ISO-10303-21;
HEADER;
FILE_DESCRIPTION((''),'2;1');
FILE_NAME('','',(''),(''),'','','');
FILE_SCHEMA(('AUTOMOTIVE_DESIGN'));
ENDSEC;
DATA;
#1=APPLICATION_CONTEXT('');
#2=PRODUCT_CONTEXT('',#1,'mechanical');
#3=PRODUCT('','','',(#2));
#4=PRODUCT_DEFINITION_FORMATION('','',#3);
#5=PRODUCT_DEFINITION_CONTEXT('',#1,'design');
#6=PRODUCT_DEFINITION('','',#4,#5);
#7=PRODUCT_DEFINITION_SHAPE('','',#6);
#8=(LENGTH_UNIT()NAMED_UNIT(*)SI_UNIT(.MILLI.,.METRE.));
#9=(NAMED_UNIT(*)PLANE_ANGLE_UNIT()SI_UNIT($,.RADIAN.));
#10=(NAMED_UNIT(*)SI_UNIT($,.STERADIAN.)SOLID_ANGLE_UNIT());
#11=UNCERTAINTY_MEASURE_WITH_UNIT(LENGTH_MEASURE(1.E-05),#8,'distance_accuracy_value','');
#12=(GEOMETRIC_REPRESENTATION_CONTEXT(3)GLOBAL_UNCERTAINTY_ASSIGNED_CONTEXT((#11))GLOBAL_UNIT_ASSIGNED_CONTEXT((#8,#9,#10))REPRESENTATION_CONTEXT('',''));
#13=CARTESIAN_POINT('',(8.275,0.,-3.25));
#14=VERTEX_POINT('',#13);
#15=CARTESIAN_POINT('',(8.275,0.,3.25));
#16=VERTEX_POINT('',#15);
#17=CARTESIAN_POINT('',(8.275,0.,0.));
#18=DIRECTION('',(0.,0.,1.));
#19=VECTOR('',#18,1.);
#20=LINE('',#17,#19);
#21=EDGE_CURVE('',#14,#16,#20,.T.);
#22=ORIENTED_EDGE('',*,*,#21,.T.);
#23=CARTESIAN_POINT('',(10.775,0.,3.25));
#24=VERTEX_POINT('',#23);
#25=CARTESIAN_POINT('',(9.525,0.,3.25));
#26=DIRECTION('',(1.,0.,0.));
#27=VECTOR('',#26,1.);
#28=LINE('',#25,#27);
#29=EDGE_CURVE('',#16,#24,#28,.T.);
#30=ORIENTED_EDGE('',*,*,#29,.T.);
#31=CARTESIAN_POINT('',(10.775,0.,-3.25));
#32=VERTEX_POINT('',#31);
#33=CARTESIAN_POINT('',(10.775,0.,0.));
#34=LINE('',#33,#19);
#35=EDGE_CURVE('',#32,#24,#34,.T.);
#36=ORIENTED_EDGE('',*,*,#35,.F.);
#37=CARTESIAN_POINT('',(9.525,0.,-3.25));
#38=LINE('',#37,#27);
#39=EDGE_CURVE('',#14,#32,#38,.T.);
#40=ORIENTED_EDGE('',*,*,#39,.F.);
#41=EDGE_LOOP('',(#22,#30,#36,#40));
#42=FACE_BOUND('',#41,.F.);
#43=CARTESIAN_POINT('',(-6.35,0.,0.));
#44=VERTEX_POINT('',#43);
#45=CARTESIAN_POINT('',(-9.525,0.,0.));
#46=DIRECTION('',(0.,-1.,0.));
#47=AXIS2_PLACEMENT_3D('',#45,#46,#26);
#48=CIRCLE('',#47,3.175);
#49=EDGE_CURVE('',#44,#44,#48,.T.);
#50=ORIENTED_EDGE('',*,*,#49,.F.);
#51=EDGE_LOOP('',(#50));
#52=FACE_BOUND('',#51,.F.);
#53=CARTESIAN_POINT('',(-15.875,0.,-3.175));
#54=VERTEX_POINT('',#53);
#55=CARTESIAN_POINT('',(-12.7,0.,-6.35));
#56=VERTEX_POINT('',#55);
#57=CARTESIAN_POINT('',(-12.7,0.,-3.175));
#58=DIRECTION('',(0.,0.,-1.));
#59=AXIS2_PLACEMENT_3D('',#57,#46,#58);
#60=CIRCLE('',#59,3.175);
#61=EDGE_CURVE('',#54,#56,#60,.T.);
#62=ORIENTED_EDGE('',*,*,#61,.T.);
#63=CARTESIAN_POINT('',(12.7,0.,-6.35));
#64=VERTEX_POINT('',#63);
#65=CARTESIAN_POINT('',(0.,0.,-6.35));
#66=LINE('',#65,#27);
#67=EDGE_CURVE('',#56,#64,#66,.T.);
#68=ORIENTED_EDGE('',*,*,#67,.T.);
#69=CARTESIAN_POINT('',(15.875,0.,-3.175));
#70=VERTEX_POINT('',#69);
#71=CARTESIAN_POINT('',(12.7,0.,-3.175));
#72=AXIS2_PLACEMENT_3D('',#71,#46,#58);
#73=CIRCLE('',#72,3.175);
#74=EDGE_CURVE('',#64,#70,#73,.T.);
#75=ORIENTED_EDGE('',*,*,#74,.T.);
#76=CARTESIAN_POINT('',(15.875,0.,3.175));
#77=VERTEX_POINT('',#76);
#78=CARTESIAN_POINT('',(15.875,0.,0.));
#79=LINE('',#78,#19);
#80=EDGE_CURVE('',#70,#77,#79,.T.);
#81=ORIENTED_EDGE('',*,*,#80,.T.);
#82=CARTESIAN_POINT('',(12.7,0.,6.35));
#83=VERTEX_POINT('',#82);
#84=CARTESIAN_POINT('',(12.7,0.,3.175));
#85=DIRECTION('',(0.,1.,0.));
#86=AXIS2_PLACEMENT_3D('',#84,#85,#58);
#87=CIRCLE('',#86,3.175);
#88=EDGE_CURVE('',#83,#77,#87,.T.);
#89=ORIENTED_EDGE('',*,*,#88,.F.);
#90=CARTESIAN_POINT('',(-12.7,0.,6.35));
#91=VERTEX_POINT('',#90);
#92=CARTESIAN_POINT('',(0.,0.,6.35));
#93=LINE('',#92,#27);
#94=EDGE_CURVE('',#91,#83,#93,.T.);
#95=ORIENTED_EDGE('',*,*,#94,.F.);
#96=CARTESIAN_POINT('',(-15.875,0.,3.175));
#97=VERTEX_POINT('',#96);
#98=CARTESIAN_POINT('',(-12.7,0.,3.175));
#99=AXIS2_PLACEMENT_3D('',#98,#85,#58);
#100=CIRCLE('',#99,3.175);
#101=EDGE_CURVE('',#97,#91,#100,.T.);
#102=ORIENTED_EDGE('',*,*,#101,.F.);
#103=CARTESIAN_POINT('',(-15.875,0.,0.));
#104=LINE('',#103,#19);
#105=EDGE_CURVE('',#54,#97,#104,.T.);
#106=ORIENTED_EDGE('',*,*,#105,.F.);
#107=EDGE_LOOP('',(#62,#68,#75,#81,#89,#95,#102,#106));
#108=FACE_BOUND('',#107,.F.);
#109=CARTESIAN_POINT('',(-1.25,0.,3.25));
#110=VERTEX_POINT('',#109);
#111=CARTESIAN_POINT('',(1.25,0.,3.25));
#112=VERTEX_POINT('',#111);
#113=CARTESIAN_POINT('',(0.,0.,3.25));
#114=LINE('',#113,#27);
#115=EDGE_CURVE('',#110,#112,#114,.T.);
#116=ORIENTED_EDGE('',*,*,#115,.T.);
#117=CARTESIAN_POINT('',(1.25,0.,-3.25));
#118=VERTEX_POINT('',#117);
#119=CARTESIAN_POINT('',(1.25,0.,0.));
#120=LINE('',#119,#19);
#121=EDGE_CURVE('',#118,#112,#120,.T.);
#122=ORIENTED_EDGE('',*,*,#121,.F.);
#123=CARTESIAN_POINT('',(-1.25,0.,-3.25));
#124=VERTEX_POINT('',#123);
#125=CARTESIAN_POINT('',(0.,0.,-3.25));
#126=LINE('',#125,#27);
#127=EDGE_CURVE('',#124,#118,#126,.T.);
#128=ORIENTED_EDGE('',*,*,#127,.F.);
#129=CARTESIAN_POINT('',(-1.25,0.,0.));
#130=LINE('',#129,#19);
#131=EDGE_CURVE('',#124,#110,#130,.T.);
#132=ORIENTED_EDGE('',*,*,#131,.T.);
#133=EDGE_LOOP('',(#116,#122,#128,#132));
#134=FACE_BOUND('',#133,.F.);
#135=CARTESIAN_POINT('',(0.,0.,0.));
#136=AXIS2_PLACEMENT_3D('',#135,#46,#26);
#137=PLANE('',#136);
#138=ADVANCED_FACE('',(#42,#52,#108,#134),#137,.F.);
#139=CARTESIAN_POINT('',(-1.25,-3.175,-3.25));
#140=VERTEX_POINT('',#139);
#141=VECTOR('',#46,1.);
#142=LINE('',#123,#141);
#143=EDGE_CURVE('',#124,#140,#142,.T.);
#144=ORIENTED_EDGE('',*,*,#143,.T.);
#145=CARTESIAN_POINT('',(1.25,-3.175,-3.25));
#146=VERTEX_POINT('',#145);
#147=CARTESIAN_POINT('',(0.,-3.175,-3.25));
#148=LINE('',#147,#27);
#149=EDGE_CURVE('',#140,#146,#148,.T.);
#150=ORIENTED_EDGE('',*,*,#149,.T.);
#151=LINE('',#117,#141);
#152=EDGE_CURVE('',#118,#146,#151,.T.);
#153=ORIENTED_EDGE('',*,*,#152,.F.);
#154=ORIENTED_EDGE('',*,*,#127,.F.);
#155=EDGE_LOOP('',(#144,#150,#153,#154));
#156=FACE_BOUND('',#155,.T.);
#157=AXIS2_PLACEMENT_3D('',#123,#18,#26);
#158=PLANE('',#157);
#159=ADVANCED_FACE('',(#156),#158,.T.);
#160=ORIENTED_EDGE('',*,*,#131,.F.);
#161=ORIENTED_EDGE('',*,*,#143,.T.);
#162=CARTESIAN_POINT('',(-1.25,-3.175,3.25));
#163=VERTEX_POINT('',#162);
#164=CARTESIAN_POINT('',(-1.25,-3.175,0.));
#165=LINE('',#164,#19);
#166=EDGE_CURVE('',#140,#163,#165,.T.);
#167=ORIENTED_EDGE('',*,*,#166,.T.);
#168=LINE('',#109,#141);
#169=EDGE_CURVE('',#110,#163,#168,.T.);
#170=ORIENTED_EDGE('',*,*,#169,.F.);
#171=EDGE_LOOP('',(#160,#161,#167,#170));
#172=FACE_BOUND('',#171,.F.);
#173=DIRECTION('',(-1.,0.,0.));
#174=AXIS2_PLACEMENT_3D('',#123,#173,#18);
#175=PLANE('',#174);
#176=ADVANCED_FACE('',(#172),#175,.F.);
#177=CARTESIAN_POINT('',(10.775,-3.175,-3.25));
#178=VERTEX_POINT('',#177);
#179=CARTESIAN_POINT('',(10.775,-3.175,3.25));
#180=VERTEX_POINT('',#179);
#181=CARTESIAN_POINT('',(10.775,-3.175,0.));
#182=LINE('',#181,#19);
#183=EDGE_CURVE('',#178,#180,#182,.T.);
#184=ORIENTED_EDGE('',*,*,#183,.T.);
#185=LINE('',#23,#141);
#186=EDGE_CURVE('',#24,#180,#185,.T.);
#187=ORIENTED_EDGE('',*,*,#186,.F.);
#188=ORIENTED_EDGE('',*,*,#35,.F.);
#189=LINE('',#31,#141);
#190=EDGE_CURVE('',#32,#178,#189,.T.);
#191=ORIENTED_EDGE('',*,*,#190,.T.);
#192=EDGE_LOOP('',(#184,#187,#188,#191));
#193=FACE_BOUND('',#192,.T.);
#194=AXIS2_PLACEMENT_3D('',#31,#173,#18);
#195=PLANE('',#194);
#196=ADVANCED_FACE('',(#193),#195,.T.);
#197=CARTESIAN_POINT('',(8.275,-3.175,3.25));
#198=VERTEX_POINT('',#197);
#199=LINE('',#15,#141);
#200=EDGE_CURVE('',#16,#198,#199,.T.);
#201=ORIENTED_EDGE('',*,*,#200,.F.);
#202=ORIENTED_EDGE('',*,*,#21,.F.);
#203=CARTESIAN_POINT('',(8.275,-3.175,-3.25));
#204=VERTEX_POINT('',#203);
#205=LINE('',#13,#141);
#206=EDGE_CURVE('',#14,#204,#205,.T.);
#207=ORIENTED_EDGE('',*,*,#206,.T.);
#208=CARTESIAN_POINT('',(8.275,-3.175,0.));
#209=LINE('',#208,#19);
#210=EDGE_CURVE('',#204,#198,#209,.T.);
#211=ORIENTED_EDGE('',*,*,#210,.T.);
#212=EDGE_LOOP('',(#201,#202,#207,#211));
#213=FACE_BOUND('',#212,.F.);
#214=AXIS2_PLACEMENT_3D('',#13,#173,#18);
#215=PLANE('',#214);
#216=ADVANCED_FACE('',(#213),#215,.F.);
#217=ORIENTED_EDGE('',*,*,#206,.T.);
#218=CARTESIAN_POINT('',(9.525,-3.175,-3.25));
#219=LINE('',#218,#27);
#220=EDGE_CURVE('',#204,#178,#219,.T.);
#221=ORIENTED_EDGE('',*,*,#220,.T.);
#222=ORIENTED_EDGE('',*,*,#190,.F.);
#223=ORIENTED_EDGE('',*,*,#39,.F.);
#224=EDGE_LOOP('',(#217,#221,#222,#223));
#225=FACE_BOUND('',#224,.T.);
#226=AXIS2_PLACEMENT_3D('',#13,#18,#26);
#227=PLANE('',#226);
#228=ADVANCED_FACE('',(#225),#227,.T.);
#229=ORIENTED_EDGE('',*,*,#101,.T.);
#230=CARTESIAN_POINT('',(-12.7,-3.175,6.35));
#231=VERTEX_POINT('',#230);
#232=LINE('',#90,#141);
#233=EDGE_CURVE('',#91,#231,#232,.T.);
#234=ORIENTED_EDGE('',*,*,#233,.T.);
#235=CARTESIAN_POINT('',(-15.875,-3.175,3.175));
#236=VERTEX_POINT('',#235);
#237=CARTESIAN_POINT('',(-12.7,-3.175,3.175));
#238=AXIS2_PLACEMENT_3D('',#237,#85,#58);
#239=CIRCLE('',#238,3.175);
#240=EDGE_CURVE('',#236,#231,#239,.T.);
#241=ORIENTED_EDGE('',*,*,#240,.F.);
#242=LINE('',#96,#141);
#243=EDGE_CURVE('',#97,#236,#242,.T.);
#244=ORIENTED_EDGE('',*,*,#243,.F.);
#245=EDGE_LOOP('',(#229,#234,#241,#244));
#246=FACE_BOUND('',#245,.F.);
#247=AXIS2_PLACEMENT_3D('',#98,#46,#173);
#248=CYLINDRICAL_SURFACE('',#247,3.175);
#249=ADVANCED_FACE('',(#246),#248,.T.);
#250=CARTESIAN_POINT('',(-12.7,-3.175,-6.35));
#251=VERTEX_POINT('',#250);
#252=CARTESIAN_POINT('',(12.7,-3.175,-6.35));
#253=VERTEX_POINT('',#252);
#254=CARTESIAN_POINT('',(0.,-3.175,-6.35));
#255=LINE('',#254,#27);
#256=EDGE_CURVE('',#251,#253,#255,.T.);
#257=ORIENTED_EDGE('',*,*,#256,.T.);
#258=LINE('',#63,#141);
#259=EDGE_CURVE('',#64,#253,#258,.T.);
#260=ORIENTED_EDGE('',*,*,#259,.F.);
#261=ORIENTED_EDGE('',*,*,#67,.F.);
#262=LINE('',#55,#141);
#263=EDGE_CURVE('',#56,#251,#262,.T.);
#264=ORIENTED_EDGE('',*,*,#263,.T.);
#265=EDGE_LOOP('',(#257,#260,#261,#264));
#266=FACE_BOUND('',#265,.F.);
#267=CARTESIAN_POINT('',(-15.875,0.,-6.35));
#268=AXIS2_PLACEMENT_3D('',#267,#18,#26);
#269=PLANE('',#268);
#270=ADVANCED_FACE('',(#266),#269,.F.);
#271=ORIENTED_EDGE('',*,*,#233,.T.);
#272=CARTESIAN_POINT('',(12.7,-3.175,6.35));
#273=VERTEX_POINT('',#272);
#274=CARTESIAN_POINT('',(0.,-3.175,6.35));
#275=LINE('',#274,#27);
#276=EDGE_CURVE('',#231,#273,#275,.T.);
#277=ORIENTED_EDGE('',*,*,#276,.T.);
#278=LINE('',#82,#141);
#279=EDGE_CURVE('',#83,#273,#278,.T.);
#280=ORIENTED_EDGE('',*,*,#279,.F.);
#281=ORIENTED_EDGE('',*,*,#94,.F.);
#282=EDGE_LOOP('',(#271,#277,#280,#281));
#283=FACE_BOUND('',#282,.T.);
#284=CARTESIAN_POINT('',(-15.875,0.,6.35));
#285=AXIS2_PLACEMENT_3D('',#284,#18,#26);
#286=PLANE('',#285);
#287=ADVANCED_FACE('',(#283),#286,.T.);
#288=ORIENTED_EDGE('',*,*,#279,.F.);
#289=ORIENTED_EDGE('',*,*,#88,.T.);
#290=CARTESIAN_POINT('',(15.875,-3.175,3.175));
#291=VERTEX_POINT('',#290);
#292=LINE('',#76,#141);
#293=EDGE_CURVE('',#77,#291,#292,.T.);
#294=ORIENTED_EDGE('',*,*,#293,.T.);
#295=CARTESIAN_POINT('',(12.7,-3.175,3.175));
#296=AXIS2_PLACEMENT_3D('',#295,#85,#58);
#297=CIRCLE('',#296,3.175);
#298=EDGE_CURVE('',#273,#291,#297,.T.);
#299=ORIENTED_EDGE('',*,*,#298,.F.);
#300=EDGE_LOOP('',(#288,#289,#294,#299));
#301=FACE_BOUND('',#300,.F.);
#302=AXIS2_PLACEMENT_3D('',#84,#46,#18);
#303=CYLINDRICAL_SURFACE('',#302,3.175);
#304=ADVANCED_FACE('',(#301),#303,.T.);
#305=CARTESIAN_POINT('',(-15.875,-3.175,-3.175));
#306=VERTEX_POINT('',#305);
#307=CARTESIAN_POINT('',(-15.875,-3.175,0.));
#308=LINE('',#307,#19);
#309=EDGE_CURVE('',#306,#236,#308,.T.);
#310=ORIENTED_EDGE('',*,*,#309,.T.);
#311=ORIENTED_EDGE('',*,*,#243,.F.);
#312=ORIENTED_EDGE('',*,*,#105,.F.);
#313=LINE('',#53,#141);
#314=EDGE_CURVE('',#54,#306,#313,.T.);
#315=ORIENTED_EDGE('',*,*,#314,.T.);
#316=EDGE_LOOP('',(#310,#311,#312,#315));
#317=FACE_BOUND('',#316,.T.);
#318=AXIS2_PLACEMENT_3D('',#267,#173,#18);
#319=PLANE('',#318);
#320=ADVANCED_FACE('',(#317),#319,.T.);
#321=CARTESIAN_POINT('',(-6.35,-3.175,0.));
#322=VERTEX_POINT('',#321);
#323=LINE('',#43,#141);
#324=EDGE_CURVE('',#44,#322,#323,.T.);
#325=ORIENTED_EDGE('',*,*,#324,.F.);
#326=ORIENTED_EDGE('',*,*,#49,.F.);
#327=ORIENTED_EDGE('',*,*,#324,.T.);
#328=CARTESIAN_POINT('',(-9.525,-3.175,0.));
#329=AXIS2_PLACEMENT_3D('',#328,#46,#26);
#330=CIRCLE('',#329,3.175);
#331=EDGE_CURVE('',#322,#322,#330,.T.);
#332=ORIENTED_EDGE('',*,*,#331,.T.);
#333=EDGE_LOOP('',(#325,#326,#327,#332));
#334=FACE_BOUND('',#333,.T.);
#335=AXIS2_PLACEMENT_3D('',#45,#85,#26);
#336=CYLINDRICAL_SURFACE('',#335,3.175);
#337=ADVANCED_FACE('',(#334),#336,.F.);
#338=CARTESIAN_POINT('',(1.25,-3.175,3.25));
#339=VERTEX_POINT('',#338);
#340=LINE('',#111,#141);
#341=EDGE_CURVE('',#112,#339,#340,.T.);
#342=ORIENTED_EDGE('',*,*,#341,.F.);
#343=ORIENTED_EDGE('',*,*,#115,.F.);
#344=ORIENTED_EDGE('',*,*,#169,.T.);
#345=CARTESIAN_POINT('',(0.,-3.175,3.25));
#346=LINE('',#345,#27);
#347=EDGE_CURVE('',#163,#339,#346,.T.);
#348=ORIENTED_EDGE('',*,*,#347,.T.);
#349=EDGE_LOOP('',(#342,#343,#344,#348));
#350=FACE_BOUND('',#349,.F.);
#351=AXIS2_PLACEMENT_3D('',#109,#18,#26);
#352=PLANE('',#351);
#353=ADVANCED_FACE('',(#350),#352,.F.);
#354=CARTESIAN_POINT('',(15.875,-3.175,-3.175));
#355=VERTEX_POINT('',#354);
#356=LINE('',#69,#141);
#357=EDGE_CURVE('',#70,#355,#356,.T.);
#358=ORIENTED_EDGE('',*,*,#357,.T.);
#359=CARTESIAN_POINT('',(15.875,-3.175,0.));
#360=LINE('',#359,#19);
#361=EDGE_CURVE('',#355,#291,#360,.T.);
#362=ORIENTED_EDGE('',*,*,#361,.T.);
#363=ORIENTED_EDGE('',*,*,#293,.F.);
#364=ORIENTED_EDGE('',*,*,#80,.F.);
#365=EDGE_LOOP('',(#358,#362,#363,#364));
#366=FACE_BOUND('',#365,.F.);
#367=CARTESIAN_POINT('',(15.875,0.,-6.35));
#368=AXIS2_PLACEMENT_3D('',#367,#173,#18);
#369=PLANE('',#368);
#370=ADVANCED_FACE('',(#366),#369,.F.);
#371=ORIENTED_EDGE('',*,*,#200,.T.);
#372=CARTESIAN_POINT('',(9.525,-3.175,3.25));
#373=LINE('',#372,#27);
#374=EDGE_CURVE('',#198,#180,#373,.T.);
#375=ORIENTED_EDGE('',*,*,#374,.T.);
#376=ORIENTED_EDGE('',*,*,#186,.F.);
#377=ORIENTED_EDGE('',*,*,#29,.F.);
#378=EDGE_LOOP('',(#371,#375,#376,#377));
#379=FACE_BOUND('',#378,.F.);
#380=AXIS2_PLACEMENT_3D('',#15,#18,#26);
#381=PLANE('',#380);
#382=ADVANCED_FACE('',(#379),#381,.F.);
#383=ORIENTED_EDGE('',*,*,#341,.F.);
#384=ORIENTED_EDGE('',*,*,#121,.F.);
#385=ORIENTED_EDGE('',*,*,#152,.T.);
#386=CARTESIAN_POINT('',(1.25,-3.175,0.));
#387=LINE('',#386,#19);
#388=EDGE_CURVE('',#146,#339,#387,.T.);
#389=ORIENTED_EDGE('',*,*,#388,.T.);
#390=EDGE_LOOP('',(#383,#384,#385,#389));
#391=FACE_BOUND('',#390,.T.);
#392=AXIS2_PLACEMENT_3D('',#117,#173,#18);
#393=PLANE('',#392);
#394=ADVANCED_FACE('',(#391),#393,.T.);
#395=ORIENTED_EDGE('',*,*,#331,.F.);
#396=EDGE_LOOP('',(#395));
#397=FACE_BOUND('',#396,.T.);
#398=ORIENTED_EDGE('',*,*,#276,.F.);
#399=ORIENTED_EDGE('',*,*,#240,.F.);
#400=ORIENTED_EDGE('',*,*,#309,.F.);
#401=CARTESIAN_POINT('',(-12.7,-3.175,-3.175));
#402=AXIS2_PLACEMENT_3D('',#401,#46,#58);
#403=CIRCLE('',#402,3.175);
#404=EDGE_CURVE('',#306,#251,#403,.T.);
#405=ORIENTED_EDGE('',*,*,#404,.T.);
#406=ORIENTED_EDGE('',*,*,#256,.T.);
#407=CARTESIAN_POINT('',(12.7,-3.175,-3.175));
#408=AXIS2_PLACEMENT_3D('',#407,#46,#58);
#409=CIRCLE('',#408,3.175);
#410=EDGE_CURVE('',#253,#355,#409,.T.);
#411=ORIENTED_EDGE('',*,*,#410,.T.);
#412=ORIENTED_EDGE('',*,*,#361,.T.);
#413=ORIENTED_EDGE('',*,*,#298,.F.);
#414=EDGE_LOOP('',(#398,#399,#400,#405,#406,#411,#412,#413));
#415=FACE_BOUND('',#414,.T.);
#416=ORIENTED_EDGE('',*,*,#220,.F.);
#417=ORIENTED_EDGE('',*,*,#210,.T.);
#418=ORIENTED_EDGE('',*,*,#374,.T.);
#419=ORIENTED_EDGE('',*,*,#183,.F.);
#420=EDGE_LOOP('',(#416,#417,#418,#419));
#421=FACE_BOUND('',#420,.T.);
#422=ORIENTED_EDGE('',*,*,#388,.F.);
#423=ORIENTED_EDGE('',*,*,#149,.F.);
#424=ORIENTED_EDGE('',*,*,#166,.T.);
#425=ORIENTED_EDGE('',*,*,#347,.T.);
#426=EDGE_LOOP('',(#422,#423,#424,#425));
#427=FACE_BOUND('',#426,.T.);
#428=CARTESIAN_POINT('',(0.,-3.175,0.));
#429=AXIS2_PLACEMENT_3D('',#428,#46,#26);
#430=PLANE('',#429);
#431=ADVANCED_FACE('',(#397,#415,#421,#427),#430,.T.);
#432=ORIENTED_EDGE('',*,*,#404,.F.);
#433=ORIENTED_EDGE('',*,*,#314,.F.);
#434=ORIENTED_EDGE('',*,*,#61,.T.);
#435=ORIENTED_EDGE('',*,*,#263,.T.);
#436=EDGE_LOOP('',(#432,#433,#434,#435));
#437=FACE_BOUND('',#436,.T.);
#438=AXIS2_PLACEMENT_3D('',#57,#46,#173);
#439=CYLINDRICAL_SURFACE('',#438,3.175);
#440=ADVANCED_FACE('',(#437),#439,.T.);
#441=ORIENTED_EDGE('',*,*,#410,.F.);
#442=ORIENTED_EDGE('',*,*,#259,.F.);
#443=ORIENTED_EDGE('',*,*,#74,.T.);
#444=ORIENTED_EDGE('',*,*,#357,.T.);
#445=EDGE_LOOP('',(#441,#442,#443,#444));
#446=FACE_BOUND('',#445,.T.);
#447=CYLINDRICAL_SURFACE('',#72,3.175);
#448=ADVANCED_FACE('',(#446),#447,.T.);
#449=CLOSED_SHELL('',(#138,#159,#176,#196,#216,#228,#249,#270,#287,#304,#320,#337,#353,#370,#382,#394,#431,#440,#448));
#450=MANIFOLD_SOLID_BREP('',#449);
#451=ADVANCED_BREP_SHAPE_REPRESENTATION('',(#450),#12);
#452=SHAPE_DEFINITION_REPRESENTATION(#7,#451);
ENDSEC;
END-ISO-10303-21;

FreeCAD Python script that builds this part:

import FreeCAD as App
import Part
import Sketcher

V = App.Vector
Q = App.Units.Quantity


def edges_at(feature, points):
    """Names of the edges that pass closest to the given points."""
    edges = feature.Shape.Edges
    near = lambda p: min(range(len(edges)), key=lambda i: edges[i].distToShape(Part.Vertex(*p))[0])
    return sorted({f"Edge{near(p) + 1}" for p in points})


def add_polygon(sketch, points):
    """Adds a closed chain of lines whose ends are joined by coincident constraints."""
    first, n = sketch.GeometryCount, len(points)
    for a, b in zip(points, points[1:] + points[:1]):
        sketch.addGeometry(Part.LineSegment(App.Vector(*a, 0), App.Vector(*b, 0)), False)
    for i in range(n):
        sketch.addConstraint(Sketcher.Constraint("Coincident", first + i, 2, first + (i + 1) % n, 1))

doc = App.newDocument("Part")
body = doc.addObject("PartDesign::Body", "Body")

# Sketch on XZ plane
sketch1 = body.newObject("Sketcher::SketchObject", "Sketch")
sketch1.AttachmentSupport = (doc.getObject("XZ_Plane"), [""])
sketch1.MapMode = "FlatFace"
add_polygon(sketch1, [(-15.9, 6.3), (-15.9, -6.3), (15.9, -6.3), (15.9, 6.3)])  # lines 0-3
sketch1.addGeometry(Part.Circle(V(-9.5, 0, 0), V(0, 0, 1), 3.2), False)  # 4
add_polygon(sketch1, [(1.2, -3.2), (-1.2, -3.2), (-1.2, 3.2), (1.2, 3.2)])  # lines 5-8
add_polygon(sketch1, [(10.8, -3.2), (8.3, -3.2), (8.3, 3.2), (10.8, 3.2)])  # lines 9-12
sketch1.addConstraint(Sketcher.Constraint("Vertical", 0))
sketch1.addConstraint(Sketcher.Constraint("Horizontal", 1))
sketch1.addConstraint(Sketcher.Constraint("Vertical", 2))
sketch1.addConstraint(Sketcher.Constraint("Horizontal", 3))
sketch1.addConstraint(Sketcher.Constraint("Horizontal", 5))
sketch1.addConstraint(Sketcher.Constraint("Vertical", 6))
sketch1.addConstraint(Sketcher.Constraint("Horizontal", 7))
sketch1.addConstraint(Sketcher.Constraint("Vertical", 8))
sketch1.addConstraint(Sketcher.Constraint("Horizontal", 9))
sketch1.addConstraint(Sketcher.Constraint("Vertical", 10))
sketch1.addConstraint(Sketcher.Constraint("Horizontal", 11))
sketch1.addConstraint(Sketcher.Constraint("Vertical", 12))
sketch1.addConstraint(Sketcher.Constraint("Symmetric", 0, 2, 2, 2, -1, 1))
sketch1.addConstraint(Sketcher.Constraint("Symmetric", 5, 2, 7, 2, -1, 1))
sketch1.addConstraint(Sketcher.Constraint("PointOnObject", 4, 3, -1))
sketch1.addConstraint(Sketcher.Constraint("Horizontal", 8, 2, 9, 2))
sketch1.addConstraint(Sketcher.Constraint("Horizontal", 7, 2, 10, 2))
sketch1.addConstraint(Sketcher.Constraint("Equal", 7, 9))
sketch1.addConstraint(Sketcher.Constraint("Diameter", 4, Q("0.25 in")))
sketch1.addConstraint(Sketcher.Constraint("DistanceY", 0, 2, 0, 1, Q("0.5 in")))
sketch1.addConstraint(Sketcher.Constraint("DistanceX", 4, 3, 1, 2, Q("1 in")))
sketch1.addConstraint(Sketcher.Constraint("DistanceX", 1, 1, 1, 2, Q("1.25 in")))
sketch1.addConstraint(Sketcher.Constraint("DistanceX", 5, 2, 9, 2, Q("0.375 in")))
sketch1.addConstraint(Sketcher.Constraint("DistanceX", 5, 2, 5, 1, 2.5))
sketch1.addConstraint(Sketcher.Constraint("DistanceY", 6, 1, 6, 2, 6.5))
pad1 = body.newObject("PartDesign::Pad", "Pad")
pad1.Profile = sketch1
pad1.Length = Q("0.125 in")
doc.recompute()

fillet = body.newObject("PartDesign::Fillet", "Fillet")
fillet.Base = (pad1, edges_at(pad1, [
    (15.875, -1.587, -6.35),
    (15.875, -1.587, 6.35),
    (-15.875, -1.587, -6.35),
    (-15.875, -1.587, 6.35),
]))
fillet.Radius = Q("0.125 in")

doc.recompute()
